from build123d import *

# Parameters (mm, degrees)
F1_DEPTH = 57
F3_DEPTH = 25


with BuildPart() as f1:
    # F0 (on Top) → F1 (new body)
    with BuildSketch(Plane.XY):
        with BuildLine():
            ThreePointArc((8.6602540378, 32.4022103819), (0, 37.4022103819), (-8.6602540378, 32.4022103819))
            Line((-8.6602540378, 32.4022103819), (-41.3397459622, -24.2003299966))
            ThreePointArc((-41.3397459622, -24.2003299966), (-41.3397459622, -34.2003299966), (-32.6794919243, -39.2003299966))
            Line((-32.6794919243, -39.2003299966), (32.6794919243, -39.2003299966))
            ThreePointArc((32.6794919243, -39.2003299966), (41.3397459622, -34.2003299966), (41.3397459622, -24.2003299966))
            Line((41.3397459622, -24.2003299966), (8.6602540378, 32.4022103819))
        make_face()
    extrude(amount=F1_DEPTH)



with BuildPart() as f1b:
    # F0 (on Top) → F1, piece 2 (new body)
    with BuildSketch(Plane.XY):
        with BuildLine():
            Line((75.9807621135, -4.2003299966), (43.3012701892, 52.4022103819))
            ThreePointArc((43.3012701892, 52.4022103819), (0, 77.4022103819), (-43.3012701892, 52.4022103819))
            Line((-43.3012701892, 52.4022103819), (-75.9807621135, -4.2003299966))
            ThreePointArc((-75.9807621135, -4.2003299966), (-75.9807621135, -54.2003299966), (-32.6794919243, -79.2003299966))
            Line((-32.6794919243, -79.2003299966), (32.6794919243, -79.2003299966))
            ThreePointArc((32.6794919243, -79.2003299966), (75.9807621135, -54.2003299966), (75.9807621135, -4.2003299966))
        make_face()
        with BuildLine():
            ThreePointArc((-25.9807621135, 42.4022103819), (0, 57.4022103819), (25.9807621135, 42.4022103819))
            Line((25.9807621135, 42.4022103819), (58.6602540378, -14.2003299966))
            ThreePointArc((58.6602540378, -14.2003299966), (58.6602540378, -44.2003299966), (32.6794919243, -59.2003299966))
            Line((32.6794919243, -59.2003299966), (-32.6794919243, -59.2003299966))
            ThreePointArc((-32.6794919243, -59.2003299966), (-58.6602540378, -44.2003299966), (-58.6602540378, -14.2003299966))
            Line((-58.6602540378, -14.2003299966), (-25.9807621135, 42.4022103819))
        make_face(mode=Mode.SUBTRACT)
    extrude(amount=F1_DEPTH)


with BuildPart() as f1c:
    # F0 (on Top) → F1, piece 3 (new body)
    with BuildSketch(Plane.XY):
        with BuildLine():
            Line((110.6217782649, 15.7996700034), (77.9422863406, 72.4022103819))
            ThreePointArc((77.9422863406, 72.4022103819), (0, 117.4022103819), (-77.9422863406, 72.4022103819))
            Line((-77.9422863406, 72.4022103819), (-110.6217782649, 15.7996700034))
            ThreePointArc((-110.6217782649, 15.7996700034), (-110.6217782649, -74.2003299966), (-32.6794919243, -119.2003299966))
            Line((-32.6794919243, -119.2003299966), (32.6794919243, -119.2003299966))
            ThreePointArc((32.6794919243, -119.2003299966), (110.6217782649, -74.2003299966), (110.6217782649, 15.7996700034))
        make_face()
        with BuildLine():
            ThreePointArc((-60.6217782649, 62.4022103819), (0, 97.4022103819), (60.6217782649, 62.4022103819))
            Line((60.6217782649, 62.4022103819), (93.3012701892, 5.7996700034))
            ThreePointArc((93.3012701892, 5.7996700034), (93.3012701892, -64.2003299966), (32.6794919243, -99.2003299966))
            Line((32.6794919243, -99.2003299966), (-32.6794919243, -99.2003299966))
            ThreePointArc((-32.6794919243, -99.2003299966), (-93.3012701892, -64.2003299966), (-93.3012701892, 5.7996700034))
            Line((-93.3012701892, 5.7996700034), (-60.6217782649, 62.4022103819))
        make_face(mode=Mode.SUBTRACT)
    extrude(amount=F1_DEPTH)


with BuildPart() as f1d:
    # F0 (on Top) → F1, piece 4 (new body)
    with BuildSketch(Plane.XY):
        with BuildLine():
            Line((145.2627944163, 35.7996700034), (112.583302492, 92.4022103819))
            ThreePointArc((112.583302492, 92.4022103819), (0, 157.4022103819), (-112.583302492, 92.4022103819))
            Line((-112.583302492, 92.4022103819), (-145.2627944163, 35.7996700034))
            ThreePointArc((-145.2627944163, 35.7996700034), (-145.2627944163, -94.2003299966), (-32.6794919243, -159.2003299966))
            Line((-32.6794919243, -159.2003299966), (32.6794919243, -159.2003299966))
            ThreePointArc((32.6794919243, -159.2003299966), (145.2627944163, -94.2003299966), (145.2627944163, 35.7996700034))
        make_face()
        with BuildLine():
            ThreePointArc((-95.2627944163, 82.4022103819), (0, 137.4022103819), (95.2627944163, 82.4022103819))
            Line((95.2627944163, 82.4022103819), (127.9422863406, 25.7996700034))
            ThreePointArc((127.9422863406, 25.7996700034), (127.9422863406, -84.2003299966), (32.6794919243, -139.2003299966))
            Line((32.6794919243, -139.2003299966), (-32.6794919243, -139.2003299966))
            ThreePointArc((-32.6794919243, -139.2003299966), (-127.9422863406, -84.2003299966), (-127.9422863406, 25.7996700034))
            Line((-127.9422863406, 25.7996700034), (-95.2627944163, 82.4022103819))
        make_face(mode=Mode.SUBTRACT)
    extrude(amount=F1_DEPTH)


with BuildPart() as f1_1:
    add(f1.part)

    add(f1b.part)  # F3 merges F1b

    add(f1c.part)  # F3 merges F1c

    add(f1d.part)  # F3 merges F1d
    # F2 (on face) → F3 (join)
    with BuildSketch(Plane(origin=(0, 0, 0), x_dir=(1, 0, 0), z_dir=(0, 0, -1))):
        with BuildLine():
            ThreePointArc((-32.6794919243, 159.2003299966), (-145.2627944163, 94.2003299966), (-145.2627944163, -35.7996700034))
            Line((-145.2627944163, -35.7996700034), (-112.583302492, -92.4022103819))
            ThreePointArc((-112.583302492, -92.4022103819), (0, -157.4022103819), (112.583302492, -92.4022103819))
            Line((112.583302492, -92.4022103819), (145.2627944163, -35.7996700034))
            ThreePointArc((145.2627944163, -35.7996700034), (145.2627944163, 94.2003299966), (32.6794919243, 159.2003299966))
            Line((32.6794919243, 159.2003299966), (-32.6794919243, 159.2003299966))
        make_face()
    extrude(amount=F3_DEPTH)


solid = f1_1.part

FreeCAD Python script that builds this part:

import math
import FreeCAD as App
import Part
import Sketcher

V = App.Vector
Q = App.Units.Quantity

doc = App.newDocument("Part")
body = doc.addObject("PartDesign::Body", "Body")

# Sketch on XY plane
sketch1 = body.newObject("Sketcher::SketchObject", "Sketch")
sketch1.AttachmentSupport = (doc.getObject("XY_Plane"), [""])
sketch1.MapMode = "FlatFace"
sketch1.addGeometry([
    Part.ArcOfCircle(Part.Circle(V(0, 27, 0), V(0, 0, 1), 10), math.radians(30), math.radians(150)),  # 0
    Part.LineSegment(V(-9, 32, 0), V(-41, -24, 0)),  # 1
    Part.ArcOfCircle(Part.Circle(V(-33, -29, 0), V(0, 0, 1), 10), math.radians(150), math.radians(270)),  # 2
    Part.LineSegment(V(-33, -39, 0), V(33, -39, 0)),  # 3
    Part.ArcOfCircle(Part.Circle(V(33, -29, 0), V(0, 0, 1), 10), math.radians(-90), math.radians(30)),  # 4
    Part.LineSegment(V(41, -24, 0), V(9, 32, 0)),  # 5
], False)
sketch1.addConstraint([
    Sketcher.Constraint("Tangent", 0, 2, 1, 1),
    Sketcher.Constraint("Tangent", 1, 2, 2, 1),
    Sketcher.Constraint("Tangent", 2, 2, 3, 1),
    Sketcher.Constraint("Tangent", 3, 2, 4, 1),
    Sketcher.Constraint("Tangent", 4, 2, 5, 1),
    Sketcher.Constraint("Tangent", 5, 2, 0, 1),
    Sketcher.Constraint("Horizontal", 3),
    Sketcher.Constraint("Equal", 0, 2),
    Sketcher.Constraint("Equal", 2, 4),
    Sketcher.Constraint("Symmetric", 1, 2, 4, 2, -2),
    Sketcher.Constraint("Radius", 0, 10.0),
    Sketcher.Constraint("Angle", 1, Q("-120 deg")),
    Sketcher.Constraint("DistanceX", 3, 1, 3, 2, 65.358984),
    Sketcher.Constraint("DistanceY", -1, 1, 0, 3, 27.40221),
])
pad1 = body.newObject("PartDesign::Pad", "Pad")
pad1.Profile = sketch1
pad1.Length = 57
body2 = doc.addObject("PartDesign::Body", "Body001")

# Sketch on XY plane
sketch2 = body2.newObject("Sketcher::SketchObject", "Sketch001")
sketch2.AttachmentSupport = (doc.getObject("XY_Plane001"), [""])
sketch2.MapMode = "FlatFace"
sketch2.addGeometry([
    Part.LineSegment(V(76, -4, 0), V(43, 52, 0)),  # 0
    Part.ArcOfCircle(Part.Circle(V(0, 27, 0), V(0, 0, 1), 50), math.radians(30), math.radians(150)),  # 1
    Part.LineSegment(V(-43, 52, 0), V(-76, -4, 0)),  # 2
    Part.ArcOfCircle(Part.Circle(V(-33, -29, 0), V(0, 0, 1), 50), math.radians(150), math.radians(270)),  # 3
    Part.LineSegment(V(-33, -79, 0), V(33, -79, 0)),  # 4
    Part.ArcOfCircle(Part.Circle(V(33, -29, 0), V(0, 0, 1), 50), math.radians(-90), math.radians(30)),  # 5
    Part.LineSegment(V(-59, -14, 0), V(-26, 42, 0)),  # 6
    Part.ArcOfCircle(Part.Circle(V(0, 27, 0), V(0, 0, 1), 30), math.radians(30), math.radians(150)),  # 7
    Part.LineSegment(V(26, 42, 0), V(59, -14, 0)),  # 8
    Part.ArcOfCircle(Part.Circle(V(33, -29, 0), V(0, 0, 1), 30), math.radians(-90), math.radians(30)),  # 9
    Part.LineSegment(V(33, -59, 0), V(-33, -59, 0)),  # 10
    Part.ArcOfCircle(Part.Circle(V(-33, -29, 0), V(0, 0, 1), 30), math.radians(150), math.radians(270)),  # 11
], False)
sketch2.addConstraint([
    Sketcher.Constraint("Tangent", 0, 2, 1, 1),
    Sketcher.Constraint("Tangent", 1, 2, 2, 1),
    Sketcher.Constraint("Tangent", 2, 2, 3, 1),
    Sketcher.Constraint("Tangent", 3, 2, 4, 1),
    Sketcher.Constraint("Tangent", 4, 2, 5, 1),
    Sketcher.Constraint("Tangent", 5, 2, 0, 1),
    Sketcher.Constraint("Tangent", 6, 2, 7, 2),
    Sketcher.Constraint("Tangent", 7, 1, 8, 1),
    Sketcher.Constraint("Tangent", 8, 2, 9, 2),
    Sketcher.Constraint("Tangent", 9, 1, 10, 1),
    Sketcher.Constraint("Tangent", 10, 2, 11, 2),
    Sketcher.Constraint("Tangent", 11, 1, 6, 1),
    Sketcher.Constraint("Horizontal", 4),
    Sketcher.Constraint("Horizontal", 10),
    Sketcher.Constraint("Coincident", 7, 3, 1, 3),
    Sketcher.Constraint("Coincident", 9, 3, 5, 3),
    Sketcher.Constraint("Coincident", 11, 3, 3, 3),
    Sketcher.Constraint("Equal", 1, 3),
    Sketcher.Constraint("Equal", 3, 5),
    Sketcher.Constraint("Equal", 7, 9),
    Sketcher.Constraint("Symmetric", 0, 2, 1, 2, -2),
    Sketcher.Constraint("Radius", 1, 50.0),
    Sketcher.Constraint("Radius", 7, 30.0),
    Sketcher.Constraint("Angle", 0, Q("120 deg")),
    Sketcher.Constraint("DistanceX", 2, 2, 6, 2, 50.0),
    Sketcher.Constraint("DistanceY", -1, 1, 1, 3, 27.40221),
])
pad2 = body2.newObject("PartDesign::Pad", "Pad001")
pad2.Profile = sketch2
pad2.Length = 57
body3 = doc.addObject("PartDesign::Body", "Body002")

# Sketch on XY plane
sketch3 = body3.newObject("Sketcher::SketchObject", "Sketch002")
sketch3.AttachmentSupport = (doc.getObject("XY_Plane002"), [""])
sketch3.MapMode = "FlatFace"
sketch3.addGeometry([
    Part.LineSegment(V(111, 16, 0), V(78, 72, 0)),  # 0
    Part.ArcOfCircle(Part.Circle(V(0, 27, 0), V(0, 0, 1), 90), math.radians(30), math.radians(150)),  # 1
    Part.LineSegment(V(-78, 72, 0), V(-111, 16, 0)),  # 2
    Part.ArcOfCircle(Part.Circle(V(-33, -29, 0), V(0, 0, 1), 90), math.radians(150), math.radians(270)),  # 3
    Part.LineSegment(V(-33, -119, 0), V(33, -119, 0)),  # 4
    Part.ArcOfCircle(Part.Circle(V(33, -29, 0), V(0, 0, 1), 90), math.radians(-90), math.radians(30)),  # 5
    Part.LineSegment(V(-93, 6, 0), V(-61, 62, 0)),  # 6
    Part.ArcOfCircle(Part.Circle(V(0, 27, 0), V(0, 0, 1), 70), math.radians(30), math.radians(150)),  # 7
    Part.LineSegment(V(61, 62, 0), V(93, 6, 0)),  # 8
    Part.ArcOfCircle(Part.Circle(V(33, -29, 0), V(0, 0, 1), 70), math.radians(-90), math.radians(30)),  # 9
    Part.LineSegment(V(33, -99, 0), V(-33, -99, 0)),  # 10
    Part.ArcOfCircle(Part.Circle(V(-33, -29, 0), V(0, 0, 1), 70), math.radians(150), math.radians(270)),  # 11
], False)
sketch3.addConstraint([
    Sketcher.Constraint("Tangent", 0, 2, 1, 1),
    Sketcher.Constraint("Tangent", 1, 2, 2, 1),
    Sketcher.Constraint("Tangent", 2, 2, 3, 1),
    Sketcher.Constraint("Tangent", 3, 2, 4, 1),
    Sketcher.Constraint("Tangent", 4, 2, 5, 1),
    Sketcher.Constraint("Tangent", 5, 2, 0, 1),
    Sketcher.Constraint("Tangent", 6, 2, 7, 2),
    Sketcher.Constraint("Tangent", 7, 1, 8, 1),
    Sketcher.Constraint("Tangent", 8, 2, 9, 2),
    Sketcher.Constraint("Tangent", 9, 1, 10, 1),
    Sketcher.Constraint("Tangent", 10, 2, 11, 2),
    Sketcher.Constraint("Tangent", 11, 1, 6, 1),
    Sketcher.Constraint("Horizontal", 4),
    Sketcher.Constraint("Horizontal", 10),
    Sketcher.Constraint("Coincident", 7, 3, 1, 3),
    Sketcher.Constraint("Coincident", 9, 3, 5, 3),
    Sketcher.Constraint("Coincident", 11, 3, 3, 3),
    Sketcher.Constraint("Equal", 1, 3),
    Sketcher.Constraint("Equal", 3, 5),
    Sketcher.Constraint("Equal", 7, 9),
    Sketcher.Constraint("Symmetric", 0, 2, 1, 2, -2),
    Sketcher.Constraint("Radius", 1, 90.0),
    Sketcher.Constraint("Radius", 7, 70.0),
    Sketcher.Constraint("Angle", 0, Q("120 deg")),
    Sketcher.Constraint("DistanceX", 2, 2, 6, 2, 50.0),
    Sketcher.Constraint("DistanceY", -1, 1, 1, 3, 27.40221),
])
pad3 = body3.newObject("PartDesign::Pad", "Pad002")
pad3.Profile = sketch3
pad3.Length = 57
body4 = doc.addObject("PartDesign::Body", "Body003")

# Sketch on XY plane
sketch4 = body4.newObject("Sketcher::SketchObject", "Sketch003")
sketch4.AttachmentSupport = (doc.getObject("XY_Plane003"), [""])
sketch4.MapMode = "FlatFace"
sketch4.addGeometry([
    Part.LineSegment(V(145, 36, 0), V(113, 92, 0)),  # 0
    Part.ArcOfCircle(Part.Circle(V(0, 27, 0), V(0, 0, 1), 130), math.radians(30), math.radians(150)),  # 1
    Part.LineSegment(V(-113, 92, 0), V(-145, 36, 0)),  # 2
    Part.ArcOfCircle(Part.Circle(V(-33, -29, 0), V(0, 0, 1), 130), math.radians(150), math.radians(270)),  # 3
    Part.LineSegment(V(-33, -159, 0), V(33, -159, 0)),  # 4
    Part.ArcOfCircle(Part.Circle(V(33, -29, 0), V(0, 0, 1), 130), math.radians(-90), math.radians(30)),  # 5
    Part.LineSegment(V(-128, 26, 0), V(-95, 82, 0)),  # 6
    Part.ArcOfCircle(Part.Circle(V(0, 27, 0), V(0, 0, 1), 110), math.radians(30), math.radians(150)),  # 7
    Part.LineSegment(V(95, 82, 0), V(128, 26, 0)),  # 8
    Part.ArcOfCircle(Part.Circle(V(33, -29, 0), V(0, 0, 1), 110), math.radians(-90), math.radians(30)),  # 9
    Part.LineSegment(V(33, -139, 0), V(-33, -139, 0)),  # 10
    Part.ArcOfCircle(Part.Circle(V(-33, -29, 0), V(0, 0, 1), 110), math.radians(150), math.radians(270)),  # 11
], False)
sketch4.addConstraint([
    Sketcher.Constraint("Tangent", 0, 2, 1, 1),
    Sketcher.Constraint("Tangent", 1, 2, 2, 1),
    Sketcher.Constraint("Tangent", 2, 2, 3, 1),
    Sketcher.Constraint("Tangent", 3, 2, 4, 1),
    Sketcher.Constraint("Tangent", 4, 2, 5, 1),
    Sketcher.Constraint("Tangent", 5, 2, 0, 1),
    Sketcher.Constraint("Tangent", 6, 2, 7, 2),
    Sketcher.Constraint("Tangent", 7, 1, 8, 1),
    Sketcher.Constraint("Tangent", 8, 2, 9, 2),
    Sketcher.Constraint("Tangent", 9, 1, 10, 1),
    Sketcher.Constraint("Tangent", 10, 2, 11, 2),
    Sketcher.Constraint("Tangent", 11, 1, 6, 1),
    Sketcher.Constraint("Horizontal", 4),
    Sketcher.Constraint("Horizontal", 10),
    Sketcher.Constraint("Coincident", 7, 3, 1, 3),
    Sketcher.Constraint("Coincident", 9, 3, 5, 3),
    Sketcher.Constraint("Coincident", 11, 3, 3, 3),
    Sketcher.Constraint("Equal", 1, 3),
    Sketcher.Constraint("Equal", 3, 5),
    Sketcher.Constraint("Equal", 7, 9),
    Sketcher.Constraint("Symmetric", 0, 2, 1, 2, -2),
    Sketcher.Constraint("Radius", 1, 130.0),
    Sketcher.Constraint("Radius", 7, 110.0),
    Sketcher.Constraint("Angle", 0, Q("120 deg")),
    Sketcher.Constraint("DistanceX", 2, 2, 6, 2, 50.0),
    Sketcher.Constraint("DistanceY", -1, 1, 1, 3, 27.40221),
])
pad4 = body4.newObject("PartDesign::Pad", "Pad003")
pad4.Profile = sketch4
pad4.Length = 57
body.AllowCompound = True
doc.recompute()

boolean = body.newObject("PartDesign::Boolean", "Boolean")
boolean.Type = "Fuse"
boolean.addObjects([body2])
doc.recompute()

boolean2 = body.newObject("PartDesign::Boolean", "Boolean001")
boolean2.Type = "Fuse"
boolean2.addObjects([body3])
doc.recompute()

boolean3 = body.newObject("PartDesign::Boolean", "Boolean002")
boolean3.Type = "Fuse"
boolean3.addObjects([body4])

# Sketch on XY plane
sketch5 = body.newObject("Sketcher::SketchObject", "Sketch004")
sketch5.AttachmentSupport = (doc.getObject("XY_Plane"), [""])
sketch5.MapMode = "FlatFace"
sketch5.addGeometry([
    Part.ArcOfCircle(Part.Circle(V(-33, -29, 0), V(0, 0, 1), 130), math.radians(150), math.radians(270)),  # 0
    Part.LineSegment(V(-145, 36, 0), V(-113, 92, 0)),  # 1
    Part.ArcOfCircle(Part.Circle(V(0, 27, 0), V(0, 0, 1), 130), math.radians(30), math.radians(150)),  # 2
    Part.LineSegment(V(113, 92, 0), V(145, 36, 0)),  # 3
    Part.ArcOfCircle(Part.Circle(V(33, -29, 0), V(0, 0, 1), 130), math.radians(-90), math.radians(30)),  # 4
    Part.LineSegment(V(33, -159, 0), V(-33, -159, 0)),  # 5
], False)
sketch5.addConstraint([
    Sketcher.Constraint("Tangent", 0, 1, 1, 1),
    Sketcher.Constraint("Tangent", 1, 2, 2, 2),
    Sketcher.Constraint("Tangent", 2, 1, 3, 1),
    Sketcher.Constraint("Tangent", 3, 2, 4, 2),
    Sketcher.Constraint("Tangent", 4, 1, 5, 1),
    Sketcher.Constraint("Tangent", 5, 2, 0, 2),
    Sketcher.Constraint("Horizontal", 5),
    Sketcher.Constraint("Equal", 0, 2),
    Sketcher.Constraint("Equal", 2, 4),
    Sketcher.Constraint("Symmetric", 1, 2, 2, 1, -2),
    Sketcher.Constraint("Radius", 0, 130.0),
    Sketcher.Constraint("Angle", 1, Q("60 deg")),
    Sketcher.Constraint("DistanceX", 5, 2, 5, 1, 65.358984),
    Sketcher.Constraint("DistanceY", 0, 3, -1, 1, 29.20033),
])
pad5 = body.newObject("PartDesign::Pad", "Pad004")
pad5.Profile = sketch5
pad5.Length = 25
pad5.Reversed = True

doc.recompute()
